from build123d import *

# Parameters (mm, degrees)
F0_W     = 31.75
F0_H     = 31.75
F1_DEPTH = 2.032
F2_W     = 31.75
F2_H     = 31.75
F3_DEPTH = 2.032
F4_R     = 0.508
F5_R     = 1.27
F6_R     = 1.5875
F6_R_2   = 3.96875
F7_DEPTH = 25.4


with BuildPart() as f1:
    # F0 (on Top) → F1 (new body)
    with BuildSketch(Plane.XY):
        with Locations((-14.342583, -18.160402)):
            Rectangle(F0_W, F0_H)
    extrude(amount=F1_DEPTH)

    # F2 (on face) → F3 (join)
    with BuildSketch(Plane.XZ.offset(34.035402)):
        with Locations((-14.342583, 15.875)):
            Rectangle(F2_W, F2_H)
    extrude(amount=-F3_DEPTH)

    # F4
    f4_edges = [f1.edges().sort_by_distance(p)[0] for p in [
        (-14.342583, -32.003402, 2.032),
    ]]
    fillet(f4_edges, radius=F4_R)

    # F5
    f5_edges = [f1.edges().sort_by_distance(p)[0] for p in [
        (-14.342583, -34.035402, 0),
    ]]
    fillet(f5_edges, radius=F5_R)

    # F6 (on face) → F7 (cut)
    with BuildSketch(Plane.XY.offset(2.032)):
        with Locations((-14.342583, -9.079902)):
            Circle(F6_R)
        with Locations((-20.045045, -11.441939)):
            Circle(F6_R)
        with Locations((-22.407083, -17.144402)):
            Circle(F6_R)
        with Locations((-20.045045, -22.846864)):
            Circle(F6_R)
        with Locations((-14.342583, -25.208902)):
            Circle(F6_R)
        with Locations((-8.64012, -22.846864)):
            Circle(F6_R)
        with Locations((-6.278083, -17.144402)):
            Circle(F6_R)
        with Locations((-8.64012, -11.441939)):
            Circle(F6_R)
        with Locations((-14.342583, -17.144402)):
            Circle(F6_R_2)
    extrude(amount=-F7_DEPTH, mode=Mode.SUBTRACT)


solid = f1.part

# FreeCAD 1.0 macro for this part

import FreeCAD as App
import Part
import Sketcher
from FreeCAD import Vector
Q = App.Units.Quantity


def edges_at(feature, points):
    """Names of the edges that pass closest to the given points."""
    edges = feature.Shape.Edges
    near = lambda p: min(range(len(edges)), key=lambda i: edges[i].distToShape(Part.Vertex(*p))[0])
    return sorted({f"Edge{near(p) + 1}" for p in points})

doc = App.newDocument("Part")
body = doc.addObject("PartDesign::Body", "Body")

sketch1 = doc.addObject("Sketcher::SketchObject", "Sketch")
body.addObject(sketch1)
sketch1.AttachmentSupport = (doc.XY_Plane, [""])
sketch1.MapMode = "FlatFace"
sketch1.addGeometry([
    Part.LineSegment(Vector(-30, -2, 0), Vector(-30, -34, 0)),
    Part.LineSegment(Vector(-30, -34, 0), Vector(2, -34, 0)),
    Part.LineSegment(Vector(2, -34, 0), Vector(2, -2, 0)),
    Part.LineSegment(Vector(2, -2, 0), Vector(-30, -2, 0)),
], False)
sketch1.addConstraint([
    Sketcher.Constraint("Coincident", 0, 2, 1, 1),
    Sketcher.Constraint("Coincident", 1, 2, 2, 1),
    Sketcher.Constraint("Coincident", 2, 2, 3, 1),
    Sketcher.Constraint("Coincident", 3, 2, 0, 1),
    Sketcher.Constraint("Vertical", 0),
    Sketcher.Constraint("Horizontal", 1),
    Sketcher.Constraint("Vertical", 2),
    Sketcher.Constraint("Horizontal", 3),
    Sketcher.Constraint("Equal", 3, 0),
    Sketcher.Constraint("DistanceX", 1, 1, 1, 2, Q("1.25 in")),
    Sketcher.Constraint("DistanceY", 0, 2, -1, 1, Q("34.035402 mm")),
    Sketcher.Constraint("DistanceX", 0, 2, -1, 1, Q("30.217583 mm")),
])
pad1 = doc.addObject("PartDesign::Pad", "Pad")
body.addObject(pad1)
pad1.Profile = sketch1
pad1.Length = Q("0.08 in")

sketch2 = doc.addObject("Sketcher::SketchObject", "Sketch001")
body.addObject(sketch2)
sketch2.AttachmentSupport = (doc.XZ_Plane, [""])
sketch2.MapMode = "FlatFace"
sketch2.AttachmentOffset = App.Placement(Vector(0, 0, 34.035402), App.Rotation())
sketch2.addGeometry([
    Part.LineSegment(Vector(-30, 32, 0), Vector(-30, 0, 0)),
    Part.LineSegment(Vector(-30, 0, 0), Vector(2, 0, 0)),
    Part.LineSegment(Vector(2, 0, 0), Vector(2, 32, 0)),
    Part.LineSegment(Vector(2, 32, 0), Vector(-30, 32, 0)),
], False)
sketch2.addConstraint([
    Sketcher.Constraint("Coincident", 0, 2, 1, 1),
    Sketcher.Constraint("Coincident", 1, 2, 2, 1),
    Sketcher.Constraint("Coincident", 2, 2, 3, 1),
    Sketcher.Constraint("Coincident", 3, 2, 0, 1),
    Sketcher.Constraint("Vertical", 0),
    Sketcher.Constraint("Horizontal", 1),
    Sketcher.Constraint("Vertical", 2),
    Sketcher.Constraint("Horizontal", 3),
    Sketcher.Constraint("PointOnObject", 0, 2, -1),
    Sketcher.Constraint("Equal", 3, 0),
    Sketcher.Constraint("DistanceX", 1, 1, 1, 2, Q("1.25 in")),
    Sketcher.Constraint("DistanceX", 0, 2, -1, 1, Q("30.217583 mm")),
])
pad2 = doc.addObject("PartDesign::Pad", "Pad001")
body.addObject(pad2)
pad2.Profile = sketch2
pad2.Length = Q("0.08 in")
pad2.Reversed = True
doc.recompute()

fillet = doc.addObject("PartDesign::Fillet", "Fillet")
body.addObject(fillet)
fillet.Base = (pad2, edges_at(pad2, [(-14.343, -32.003, 2.032)]))
fillet.Radius = Q("0.02 in")
doc.recompute()

fillet2 = doc.addObject("PartDesign::Fillet", "Fillet001")
body.addObject(fillet2)
fillet2.Base = (fillet, edges_at(fillet, [(-14.343, -34.035, 0)]))
fillet2.Radius = Q("0.05 in")

sketch3 = doc.addObject("Sketcher::SketchObject", "Sketch002")
body.addObject(sketch3)
sketch3.AttachmentSupport = (doc.XY_Plane, [""])
sketch3.MapMode = "FlatFace"
sketch3.AttachmentOffset = App.Placement(Vector(0, 0, 0.08 * 25.4), App.Rotation())
sketch3.addGeometry([
    Part.Circle(Vector(-14.3, -9.1, 0), Vector(0, 0, 1), 1.6),
    Part.Circle(Vector(-20, -11.4, 0), Vector(0, 0, 1), 1.6),
    Part.Circle(Vector(-22.4, -17.1, 0), Vector(0, 0, 1), 1.6),
    Part.Circle(Vector(-20, -22.8, 0), Vector(0, 0, 1), 1.6),
    Part.Circle(Vector(-14.3, -25.2, 0), Vector(0, 0, 1), 1.6),
    Part.Circle(Vector(-8.6, -22.8, 0), Vector(0, 0, 1), 1.6),
    Part.Circle(Vector(-6.3, -17.1, 0), Vector(0, 0, 1), 1.6),
    Part.Circle(Vector(-8.6, -11.4, 0), Vector(0, 0, 1), 1.6),
    Part.Circle(Vector(-14.3, -17.1, 0), Vector(0, 0, 1), 4),
], False)
sketch3.addConstraint([
    Sketcher.Constraint("Equal", 0, 1),
    Sketcher.Constraint("Equal", 1, 2),
    Sketcher.Constraint("Equal", 2, 3),
    Sketcher.Constraint("Equal", 3, 4),
    Sketcher.Constraint("Equal", 4, 5),
    Sketcher.Constraint("Equal", 5, 6),
    Sketcher.Constraint("Equal", 6, 7),
    Sketcher.Constraint("Horizontal", 3, 3, 5, 3),
    Sketcher.Constraint("Horizontal", 2, 3, 6, 3),
    Sketcher.Constraint("Horizontal", 1, 3, 7, 3),
    Sketcher.Constraint("Horizontal", 6, 3, 8, 3),
    Sketcher.Constraint("Vertical", 1, 3, 3, 3),
    Sketcher.Constraint("Vertical", 0, 3, 4, 3),
    Sketcher.Constraint("Vertical", 5, 3, 7, 3),
    Sketcher.Constraint("Vertical", 4, 3, 8, 3),
    Sketcher.Constraint("Diameter", 0, Q("0.125 in")),
    Sketcher.Constraint("Diameter", 8, Q("0.3125 in")),
    Sketcher.Constraint("DistanceY", 4, 3, 0, 3, Q("0.635 in")),
    Sketcher.Constraint("DistanceX", 2, 3, 0, 3, Q("0.3175 in")),
    Sketcher.Constraint("DistanceY", 2, 3, 0, 3, Q("0.3175 in")),
    Sketcher.Constraint("DistanceX", 0, 3, 6, 3, Q("0.3175 in")),
    Sketcher.Constraint("DistanceY", 2, 3, -1, 1, Q("17.144402 mm")),
    Sketcher.Constraint("DistanceY", 1, 3, -1, 1, Q("11.441939 mm")),
    Sketcher.Constraint("DistanceX", 5, 3, -1, 1, Q("8.64012 mm")),
    Sketcher.Constraint("DistanceX", 1, 3, 0, 3, Q("5.702462 mm")),
    Sketcher.Constraint("DistanceX", 0, 3, -1, 1, Q("14.342583 mm")),
    Sketcher.Constraint("DistanceY", 3, 3, -1, 1, Q("22.846864 mm")),
])
pocket1 = doc.addObject("PartDesign::Pocket", "Pocket")
body.addObject(pocket1)
pocket1.Profile = sketch3
pocket1.Length = Q("1 in")

doc.recompute()
